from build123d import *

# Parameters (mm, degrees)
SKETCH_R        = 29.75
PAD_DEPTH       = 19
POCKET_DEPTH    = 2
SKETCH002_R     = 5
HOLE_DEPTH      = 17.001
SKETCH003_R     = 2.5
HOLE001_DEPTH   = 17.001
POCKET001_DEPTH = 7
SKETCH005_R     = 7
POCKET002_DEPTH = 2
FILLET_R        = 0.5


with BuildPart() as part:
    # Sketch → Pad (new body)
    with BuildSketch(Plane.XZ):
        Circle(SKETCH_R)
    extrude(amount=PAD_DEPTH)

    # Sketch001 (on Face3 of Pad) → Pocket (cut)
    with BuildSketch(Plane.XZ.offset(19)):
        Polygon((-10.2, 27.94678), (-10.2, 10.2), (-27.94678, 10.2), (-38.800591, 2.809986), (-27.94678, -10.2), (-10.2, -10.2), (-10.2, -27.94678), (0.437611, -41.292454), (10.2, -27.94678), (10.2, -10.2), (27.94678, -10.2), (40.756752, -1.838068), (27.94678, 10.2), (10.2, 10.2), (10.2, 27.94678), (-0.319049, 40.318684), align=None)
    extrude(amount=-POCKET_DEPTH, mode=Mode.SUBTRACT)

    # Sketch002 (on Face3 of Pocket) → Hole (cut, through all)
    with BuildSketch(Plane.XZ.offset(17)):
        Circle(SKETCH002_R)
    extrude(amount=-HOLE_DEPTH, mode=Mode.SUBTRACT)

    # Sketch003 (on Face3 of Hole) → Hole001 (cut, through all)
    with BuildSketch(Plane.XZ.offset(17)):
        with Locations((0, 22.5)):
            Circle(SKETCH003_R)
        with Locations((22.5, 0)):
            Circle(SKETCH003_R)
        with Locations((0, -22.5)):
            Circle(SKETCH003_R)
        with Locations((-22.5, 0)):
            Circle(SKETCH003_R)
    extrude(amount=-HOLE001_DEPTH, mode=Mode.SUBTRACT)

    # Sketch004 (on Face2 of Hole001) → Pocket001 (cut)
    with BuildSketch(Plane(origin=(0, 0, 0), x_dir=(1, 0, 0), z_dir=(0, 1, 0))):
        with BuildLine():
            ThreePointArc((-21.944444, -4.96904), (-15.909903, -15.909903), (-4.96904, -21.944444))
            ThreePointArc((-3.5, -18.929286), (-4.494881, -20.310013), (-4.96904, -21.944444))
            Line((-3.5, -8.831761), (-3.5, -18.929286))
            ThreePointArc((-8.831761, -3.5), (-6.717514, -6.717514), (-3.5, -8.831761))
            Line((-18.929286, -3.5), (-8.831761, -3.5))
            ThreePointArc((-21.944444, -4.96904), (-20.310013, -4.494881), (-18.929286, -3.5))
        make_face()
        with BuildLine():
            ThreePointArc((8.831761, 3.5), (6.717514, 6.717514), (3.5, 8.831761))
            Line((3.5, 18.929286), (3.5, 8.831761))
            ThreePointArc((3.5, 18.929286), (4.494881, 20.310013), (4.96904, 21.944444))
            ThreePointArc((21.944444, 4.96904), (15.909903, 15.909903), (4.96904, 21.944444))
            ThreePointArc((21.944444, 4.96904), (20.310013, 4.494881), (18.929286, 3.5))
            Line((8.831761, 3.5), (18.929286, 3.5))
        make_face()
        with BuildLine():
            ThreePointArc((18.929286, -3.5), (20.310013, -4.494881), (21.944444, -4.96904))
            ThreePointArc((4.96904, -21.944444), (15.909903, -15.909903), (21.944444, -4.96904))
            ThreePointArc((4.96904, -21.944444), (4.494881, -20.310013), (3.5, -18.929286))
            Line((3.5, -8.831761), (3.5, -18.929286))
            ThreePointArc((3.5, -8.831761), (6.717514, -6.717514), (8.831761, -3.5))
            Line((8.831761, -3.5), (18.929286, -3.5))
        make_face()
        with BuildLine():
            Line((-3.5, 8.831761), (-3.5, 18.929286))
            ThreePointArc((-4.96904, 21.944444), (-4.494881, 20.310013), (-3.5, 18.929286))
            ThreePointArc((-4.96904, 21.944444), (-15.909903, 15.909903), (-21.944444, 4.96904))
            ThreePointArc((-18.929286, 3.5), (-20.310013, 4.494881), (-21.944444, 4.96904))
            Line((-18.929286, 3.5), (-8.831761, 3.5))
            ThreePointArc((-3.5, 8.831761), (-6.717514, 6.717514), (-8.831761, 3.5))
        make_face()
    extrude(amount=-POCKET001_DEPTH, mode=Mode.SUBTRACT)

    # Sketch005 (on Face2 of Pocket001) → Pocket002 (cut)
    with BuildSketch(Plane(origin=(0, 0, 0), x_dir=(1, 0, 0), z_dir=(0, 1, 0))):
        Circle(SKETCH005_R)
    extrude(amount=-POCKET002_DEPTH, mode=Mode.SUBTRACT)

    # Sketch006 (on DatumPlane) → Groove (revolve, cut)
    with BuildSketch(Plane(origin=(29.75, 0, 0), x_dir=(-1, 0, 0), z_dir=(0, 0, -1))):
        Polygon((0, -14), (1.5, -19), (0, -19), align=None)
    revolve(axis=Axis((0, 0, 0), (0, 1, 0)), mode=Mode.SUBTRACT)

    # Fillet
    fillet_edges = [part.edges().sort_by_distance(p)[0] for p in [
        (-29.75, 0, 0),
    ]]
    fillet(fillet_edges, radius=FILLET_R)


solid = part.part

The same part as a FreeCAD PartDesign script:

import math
import FreeCAD as App
import Part
import Sketcher

V = App.Vector
Q = App.Units.Quantity


def edges_at(feature, points):
    """Names of the edges that pass closest to the given points."""
    edges = feature.Shape.Edges
    near = lambda p: min(range(len(edges)), key=lambda i: edges[i].distToShape(Part.Vertex(*p))[0])
    return sorted({f"Edge{near(p) + 1}" for p in points})


def add_polygon(sketch, points):
    """Adds a closed chain of lines whose ends are joined by coincident constraints."""
    first, n = sketch.GeometryCount, len(points)
    for a, b in zip(points, points[1:] + points[:1]):
        sketch.addGeometry(Part.LineSegment(App.Vector(*a, 0), App.Vector(*b, 0)), False)
    for i in range(n):
        sketch.addConstraint(Sketcher.Constraint("Coincident", first + i, 2, first + (i + 1) % n, 1))

doc = App.newDocument("Part")
body = doc.addObject("PartDesign::Body", "Body")

# Sketch on XZ plane
sketch1 = body.newObject("Sketcher::SketchObject", "Sketch")
sketch1.AttachmentSupport = (doc.getObject("XZ_Plane"), [""])
sketch1.MapMode = "FlatFace"
sketch1.addGeometry(Part.Circle(V(0, 0, 0), V(0, 0, 1), 30), False)
sketch1.addConstraint([
    Sketcher.Constraint("Coincident", 0, 3, -1, 1),
    Sketcher.Constraint("Diameter", 0, Q("59.5 mm")),
])
pad1 = body.newObject("PartDesign::Pad", "Pad")
pad1.Profile = sketch1
pad1.Length = 19

# Sketch on XZ plane
sketch2 = body.newObject("Sketcher::SketchObject", "Sketch001")
sketch2.AttachmentSupport = (doc.getObject("XZ_Plane"), [""])
sketch2.MapMode = "FlatFace"
sketch2.AttachmentOffset = App.Placement(V(0, 0, 19), App.Rotation())
add_polygon(sketch2, [(-10, 28), (-10, 10), (-28, 10), (-39, 3), (-28, -10), (-10, -10), (-10, -28), (0, -41), (10, -28), (10, -10), (28, -10), (41, -2), (28, 10), (10, 10), (10, 28), (0, 40)])  # lines 0-15
sketch2.addConstraint([
    Sketcher.Constraint("Vertical", 0),
    Sketcher.Constraint("Horizontal", 1),
    Sketcher.Constraint("Horizontal", 4),
    Sketcher.Constraint("Vertical", 5),
    Sketcher.Constraint("Vertical", 8),
    Sketcher.Constraint("Horizontal", 9),
    Sketcher.Constraint("Horizontal", 12),
    Sketcher.Constraint("Vertical", 13),
    Sketcher.Constraint("Symmetric", 0, 2, 8, 2, -1, 1),
    Sketcher.Constraint("Symmetric", 3, 2, 11, 2, -1, 1),
    Sketcher.Constraint("Symmetric", 5, 2, 13, 2, -1, 1),
    Sketcher.Constraint("Symmetric", 5, 2, 7, 2, -2),
    Sketcher.Constraint("Symmetric", 3, 2, 9, 2, -2),
    Sketcher.Constraint("Horizontal", 13, 2, 15, 2),
    Sketcher.Constraint("Vertical", 1, 2, 3, 2),
    Sketcher.Constraint("Equal", 12, 0),
    Sketcher.Constraint("DistanceX", 0, 2, -1, 1, Q("10.2 mm")),
    Sketcher.Constraint("DistanceY", -1, 1, 0, 2, Q("10.2 mm")),
    Sketcher.Constraint("DistanceX", 1, 2, 1, 1, Q("17.74678 mm")),
    Sketcher.Constraint("Distance", 3, Q("16.942991 mm")),
    Sketcher.Constraint("Distance", 6, Q("17.066511 mm")),
    Sketcher.Constraint("Distance", 15, Q("15.83342 mm")),
    Sketcher.Constraint("DistanceX", 2, 2, -1, 1, Q("38.800591 mm")),
    Sketcher.Constraint("DistanceX", -1, 1, 6, 2, Q("0.437611 mm")),
    Sketcher.Constraint("DistanceX", 14, 2, -1, 1, Q("0.319049 mm")),
    Sketcher.Constraint("DistanceX", 9, 2, 10, 2, Q("12.809972 mm")),
    Sketcher.Constraint("Distance", 10, Q("15.297624 mm")),
])
pocket1 = body.newObject("PartDesign::Pocket", "Pocket")
pocket1.Profile = sketch2
pocket1.Length = 2

# Sketch on XZ plane
sketch3 = body.newObject("Sketcher::SketchObject", "Sketch002")
sketch3.AttachmentSupport = (doc.getObject("XZ_Plane"), [""])
sketch3.MapMode = "FlatFace"
sketch3.AttachmentOffset = App.Placement(V(0, 0, 17), App.Rotation())
sketch3.addGeometry(Part.Circle(V(0, 0, 0), V(0, 0, 1), 5), False)
sketch3.addConstraint([
    Sketcher.Constraint("Coincident", 0, 3, -1, 1),
    Sketcher.Constraint("Diameter", 0, Q("10 mm")),
])
pocket2 = body.newObject("PartDesign::Pocket", "Pocket001")
pocket2.Profile = sketch3
pocket2.Type = "ThroughAll"

# Sketch on XZ plane
sketch4 = body.newObject("Sketcher::SketchObject", "Sketch003")
sketch4.AttachmentSupport = (doc.getObject("XZ_Plane"), [""])
sketch4.MapMode = "FlatFace"
sketch4.AttachmentOffset = App.Placement(V(0, 0, 17), App.Rotation())
sketch4.addGeometry([
    Part.Circle(V(0, 22.5, 0), V(0, 0, 1), 2.5),
    Part.Circle(V(22.5, 0, 0), V(0, 0, 1), 2.5),
    Part.Circle(V(0, -22.5, 0), V(0, 0, 1), 2.5),
    Part.Circle(V(-22.5, 0, 0), V(0, 0, 1), 2.5),
], False)
sketch4.addConstraint([
    Sketcher.Constraint("Equal", 0, 1),
    Sketcher.Constraint("Equal", 1, 2),
    Sketcher.Constraint("Equal", 2, 3),
    Sketcher.Constraint("Symmetric", 0, 3, 2, 3, -1, 1),
    Sketcher.Constraint("Symmetric", 1, 3, 3, 3, -1, 1),
    Sketcher.Constraint("PointOnObject", 0, 3, -2),
    Sketcher.Constraint("PointOnObject", 1, 3, -1),
    Sketcher.Constraint("Diameter", 0, Q("5 mm")),
    Sketcher.Constraint("DistanceY", 2, 3, 0, 3, Q("45 mm")),
    Sketcher.Constraint("DistanceX", 3, 3, 1, 3, Q("45 mm")),
])
pocket3 = body.newObject("PartDesign::Pocket", "Pocket002")
pocket3.Profile = sketch4
pocket3.Type = "ThroughAll"

# Sketch on XZ plane
sketch5 = body.newObject("Sketcher::SketchObject", "Sketch004")
sketch5.AttachmentSupport = (doc.getObject("XZ_Plane"), [""])
sketch5.MapMode = "FlatFace"
sketch5.addGeometry([
    Part.ArcOfCircle(Part.Circle(V(0, 0, 0), V(0, 0, 1), 22.5), math.radians(103), math.radians(167)),  # 0
    Part.ArcOfCircle(Part.Circle(V(0, 22.5, 0), V(0, 0, 1), 5), math.radians(-174), math.radians(-134)),  # 1
    Part.LineSegment(V(-3.5, 18.9, 0), V(-3.5, 8.8, 0)),  # 2
    Part.ArcOfCircle(Part.Circle(V(0, 0, 0), V(0, 0, 1), 9.5), math.radians(112), math.radians(158)),  # 3
    Part.LineSegment(V(-8.8, 3.5, 0), V(-18.9, 3.5, 0)),  # 4
    Part.ArcOfCircle(Part.Circle(V(-22.5, 0, 0), V(0, 0, 1), 5), math.radians(44), math.radians(84)),  # 5
    Part.ArcOfCircle(Part.Circle(V(0, 0, 0), V(0, 0, 1), 9.5), math.radians(-68), math.radians(-22)),  # 6
    Part.LineSegment(V(8.8, -3.5, 0), V(18.9, -3.5, 0)),  # 7
    Part.ArcOfCircle(Part.Circle(V(22.5, 0, 0), V(0, 0, 1), 5), math.radians(-136), math.radians(-96)),  # 8
    Part.ArcOfCircle(Part.Circle(V(0, 0, 0), V(0, 0, 1), 22.5), math.radians(-77), math.radians(-13)),  # 9
    Part.ArcOfCircle(Part.Circle(V(0, -22.5, 0), V(0, 0, 1), 5), math.radians(6), math.radians(46)),  # 10
    Part.LineSegment(V(3.5, -18.9, 0), V(3.5, -8.8, 0)),  # 11
    Part.ArcOfCircle(Part.Circle(V(22.5, 0, 0), V(0, 0, 1), 5), math.radians(96), math.radians(136)),  # 12
    Part.LineSegment(V(18.9, 3.5, 0), V(8.8, 3.5, 0)),  # 13
    Part.ArcOfCircle(Part.Circle(V(0, 0, 0), V(0, 0, 1), 9.5), math.radians(22), math.radians(68)),  # 14
    Part.LineSegment(V(3.5, 8.8, 0), V(3.5, 18.9, 0)),  # 15
    Part.ArcOfCircle(Part.Circle(V(0, 22.5, 0), V(0, 0, 1), 5), math.radians(-46), math.radians(-6)),  # 16
    Part.ArcOfCircle(Part.Circle(V(0, 0, 0), V(0, 0, 1), 22.5), math.radians(13), math.radians(77)),  # 17
    Part.LineSegment(V(-3.5, -8.8, 0), V(-3.5, -18.9, 0)),  # 18
    Part.ArcOfCircle(Part.Circle(V(0, -22.5, 0), V(0, 0, 1), 5), math.radians(134), math.radians(174)),  # 19
    Part.ArcOfCircle(Part.Circle(V(0, 0, 0), V(0, 0, 1), 22.5), math.radians(-167), math.radians(-103)),  # 20
    Part.ArcOfCircle(Part.Circle(V(-22.5, 0, 0), V(0, 0, 1), 5), math.radians(-84), math.radians(-44)),  # 21
    Part.LineSegment(V(-18.9, -3.5, 0), V(-8.8, -3.5, 0)),  # 22
    Part.ArcOfCircle(Part.Circle(V(0, 0, 0), V(0, 0, 1), 9.5), math.radians(-158), math.radians(-112)),  # 23
], False)
sketch5.addConstraint([
    Sketcher.Constraint("Coincident", 0, 1, 1, 1),
    Sketcher.Constraint("Coincident", 1, 2, 2, 1),
    Sketcher.Constraint("Coincident", 2, 2, 3, 1),
    Sketcher.Constraint("Coincident", 3, 2, 4, 1),
    Sketcher.Constraint("Coincident", 4, 2, 5, 1),
    Sketcher.Constraint("Coincident", 5, 2, 0, 2),
    Sketcher.Constraint("Coincident", 6, 2, 7, 1),
    Sketcher.Constraint("Coincident", 7, 2, 8, 1),
    Sketcher.Constraint("Coincident", 8, 2, 9, 2),
    Sketcher.Constraint("Coincident", 9, 1, 10, 1),
    Sketcher.Constraint("Coincident", 10, 2, 11, 1),
    Sketcher.Constraint("Coincident", 11, 2, 6, 1),
    Sketcher.Constraint("Coincident", 12, 2, 13, 1),
    Sketcher.Constraint("Coincident", 13, 2, 14, 1),
    Sketcher.Constraint("Coincident", 14, 2, 15, 1),
    Sketcher.Constraint("Coincident", 15, 2, 16, 1),
    Sketcher.Constraint("Coincident", 16, 2, 17, 2),
    Sketcher.Constraint("Coincident", 17, 1, 12, 1),
    Sketcher.Constraint("Coincident", 18, 2, 19, 1),
    Sketcher.Constraint("Coincident", 19, 2, 20, 2),
    Sketcher.Constraint("Coincident", 20, 1, 21, 1),
    Sketcher.Constraint("Coincident", 21, 2, 22, 1),
    Sketcher.Constraint("Coincident", 22, 2, 23, 1),
    Sketcher.Constraint("Coincident", 23, 2, 18, 1),
    Sketcher.Constraint("Vertical", 2),
    Sketcher.Constraint("Horizontal", 4),
    Sketcher.Constraint("Horizontal", 7),
    Sketcher.Constraint("Vertical", 11),
    Sketcher.Constraint("Horizontal", 13),
    Sketcher.Constraint("Vertical", 15),
    Sketcher.Constraint("Vertical", 18),
    Sketcher.Constraint("Horizontal", 22),
    Sketcher.Constraint("Coincident", 0, 3, -1, 1),
    Sketcher.Constraint("Coincident", 3, 3, -1, 1),
    Sketcher.Constraint("Coincident", 6, 3, -1, 1),
    Sketcher.Constraint("Coincident", 9, 3, -1, 1),
    Sketcher.Constraint("Coincident", 14, 3, -1, 1),
    Sketcher.Constraint("Coincident", 17, 3, -1, 1),
    Sketcher.Constraint("Coincident", 20, 3, -1, 1),
    Sketcher.Constraint("Coincident", 23, 3, -1, 1),
    Sketcher.Constraint("Coincident", 12, 3, 8, 3),
    Sketcher.Constraint("Coincident", 16, 3, 1, 3),
    Sketcher.Constraint("Coincident", 19, 3, 10, 3),
    Sketcher.Constraint("Coincident", 21, 3, 5, 3),
    Sketcher.Constraint("Equal", 1, 5),
    Sketcher.Constraint("Equal", 3, 6),
    Sketcher.Constraint("Equal", 5, 8),
    Sketcher.Constraint("Equal", 0, 9),
    Sketcher.Constraint("Equal", 8, 10),
    Sketcher.Constraint("Equal", 10, 12),
    Sketcher.Constraint("Equal", 6, 14),
    Sketcher.Constraint("Equal", 12, 16),
    Sketcher.Constraint("Equal", 9, 17),
    Sketcher.Constraint("Equal", 16, 19),
    Sketcher.Constraint("Equal", 17, 20),
    Sketcher.Constraint("Equal", 19, 21),
    Sketcher.Constraint("Equal", 14, 23),
    Sketcher.Constraint("Symmetric", 5, 3, 8, 3, -1, 1),
    Sketcher.Constraint("Symmetric", 1, 3, 10, 3, -1, 1),
    Sketcher.Constraint("Symmetric", 4, 2, 12, 2, -2),
    Sketcher.Constraint("Symmetric", 1, 2, 15, 2, -2),
    Sketcher.Constraint("Horizontal", 10, 2, 18, 2),
    Sketcher.Constraint("Horizontal", 7, 2, 21, 2),
    Sketcher.Constraint("Vertical", 7, 2, 12, 2),
    Sketcher.Constraint("Vertical", 11, 2, 14, 2),
    Sketcher.Constraint("Equal", 22, 2),
    Sketcher.Constraint("DistanceY", 7, 2, 12, 2, Q("7 mm")),
    Sketcher.Constraint("DistanceX", 2, 2, 14, 2, Q("7 mm")),
    Sketcher.Constraint("DistanceY", -1, 1, 1, 3, Q("22.500001 mm")),
    Sketcher.Constraint("Radius", 3, Q("9.500008 mm")),
    Sketcher.Constraint("Radius", 0, Q("22.499994 mm")),
    Sketcher.Constraint("Radius", 1, Q("5.000002 mm")),
])
pocket4 = body.newObject("PartDesign::Pocket", "Pocket003")
pocket4.Profile = sketch5
pocket4.Length = 7
pocket4.Reversed = True

# Sketch on XZ plane
sketch6 = body.newObject("Sketcher::SketchObject", "Sketch005")
sketch6.AttachmentSupport = (doc.getObject("XZ_Plane"), [""])
sketch6.MapMode = "FlatFace"
sketch6.addGeometry(Part.Circle(V(0, 0, 0), V(0, 0, 1), 7), False)
sketch6.addConstraint([
    Sketcher.Constraint("Coincident", 0, 3, -1, 1),
    Sketcher.Constraint("Diameter", 0, Q("14 mm")),
])
pocket5 = body.newObject("PartDesign::Pocket", "Pocket004")
pocket5.Profile = sketch6
pocket5.Length = 2
pocket5.Reversed = True

# Sketch on XY plane
sketch7 = body.newObject("Sketcher::SketchObject", "Sketch006")
sketch7.AttachmentSupport = (doc.getObject("XY_Plane"), [""])
sketch7.MapMode = "FlatFace"
add_polygon(sketch7, [(28.2, -19), (29.8, -14), (29.8, -19)])  # lines 0-2
sketch7.addConstraint([
    Sketcher.Constraint("Vertical", 1),
    Sketcher.Constraint("Horizontal", 2),
    Sketcher.Constraint("DistanceY", 1, 2, 1, 1, Q("5 mm")),
    Sketcher.Constraint("DistanceX", 2, 2, 2, 1, Q("1.5 mm")),
    Sketcher.Constraint("DistanceY", 0, 2, -1, 1, Q("14 mm")),
    Sketcher.Constraint("DistanceX", -1, 1, 0, 2, Q("29.75 mm")),
])
groove = body.newObject("PartDesign::Groove", "Groove")
groove.Profile = sketch7
groove.ReferenceAxis = (sketch7, ["V_Axis"])
groove.Angle = 360
doc.recompute()

fillet = body.newObject("PartDesign::Fillet", "Fillet")
fillet.Base = (groove, edges_at(groove, [(-29.75, 0, 0)]))
fillet.Radius = 0.5

doc.recompute()
